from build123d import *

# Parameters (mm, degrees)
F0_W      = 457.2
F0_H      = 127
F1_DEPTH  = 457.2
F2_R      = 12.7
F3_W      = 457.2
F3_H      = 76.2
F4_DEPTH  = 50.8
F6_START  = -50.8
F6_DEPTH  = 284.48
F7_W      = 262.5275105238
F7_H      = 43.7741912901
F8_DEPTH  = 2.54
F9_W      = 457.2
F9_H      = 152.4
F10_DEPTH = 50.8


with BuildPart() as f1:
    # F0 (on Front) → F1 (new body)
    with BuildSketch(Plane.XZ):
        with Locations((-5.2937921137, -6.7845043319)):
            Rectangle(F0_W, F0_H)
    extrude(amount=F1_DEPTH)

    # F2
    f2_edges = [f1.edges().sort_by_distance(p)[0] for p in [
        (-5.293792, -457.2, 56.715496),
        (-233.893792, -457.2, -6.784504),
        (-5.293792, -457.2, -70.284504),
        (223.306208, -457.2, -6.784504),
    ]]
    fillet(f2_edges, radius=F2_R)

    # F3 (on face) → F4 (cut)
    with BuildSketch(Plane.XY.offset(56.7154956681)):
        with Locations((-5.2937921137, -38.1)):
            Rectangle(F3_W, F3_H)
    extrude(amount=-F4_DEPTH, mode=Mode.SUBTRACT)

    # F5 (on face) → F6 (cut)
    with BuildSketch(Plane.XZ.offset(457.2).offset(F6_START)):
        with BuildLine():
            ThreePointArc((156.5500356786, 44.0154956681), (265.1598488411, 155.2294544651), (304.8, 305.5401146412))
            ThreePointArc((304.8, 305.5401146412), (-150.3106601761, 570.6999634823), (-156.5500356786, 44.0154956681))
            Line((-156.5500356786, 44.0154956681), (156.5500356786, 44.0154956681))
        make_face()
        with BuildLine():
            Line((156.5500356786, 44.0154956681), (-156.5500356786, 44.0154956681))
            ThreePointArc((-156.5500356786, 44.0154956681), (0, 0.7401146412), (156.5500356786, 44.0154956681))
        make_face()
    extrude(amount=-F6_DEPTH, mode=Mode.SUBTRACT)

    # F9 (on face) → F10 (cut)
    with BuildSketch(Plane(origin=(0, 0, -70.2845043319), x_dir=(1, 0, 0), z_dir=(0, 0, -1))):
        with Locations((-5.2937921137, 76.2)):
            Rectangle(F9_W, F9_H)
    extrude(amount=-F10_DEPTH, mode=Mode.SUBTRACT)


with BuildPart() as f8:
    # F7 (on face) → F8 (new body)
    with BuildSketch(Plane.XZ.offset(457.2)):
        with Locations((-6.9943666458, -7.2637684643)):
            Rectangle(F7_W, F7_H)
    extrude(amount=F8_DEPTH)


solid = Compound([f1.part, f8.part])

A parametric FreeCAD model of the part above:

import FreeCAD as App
import Part
import Sketcher
Q = App.Units.Quantity


def edges_at(feature, points):
    """Names of the edges that pass closest to the given points."""
    edges = feature.Shape.Edges
    near = lambda p: min(range(len(edges)), key=lambda i: edges[i].distToShape(Part.Vertex(*p))[0])
    return sorted({f"Edge{near(p) + 1}" for p in points})

doc = App.newDocument("Part")
body = doc.addObject("PartDesign::Body", "Body")

sketch1 = doc.addObject("Sketcher::SketchObject", "Sketch")
body.addObject(sketch1)
sketch1.AttachmentSupport = (doc.XZ_Plane, [""])
sketch1.MapMode = "FlatFace"
sketch1.addGeometry([
    Part.LineSegment(App.Vector(-234, 57, 0), App.Vector(-234, -70, 0)),
    Part.LineSegment(App.Vector(-234, -70, 0), App.Vector(223, -70, 0)),
    Part.LineSegment(App.Vector(223, -70, 0), App.Vector(223, 57, 0)),
    Part.LineSegment(App.Vector(223, 57, 0), App.Vector(-234, 57, 0)),
], False)
sketch1.addConstraint([
    Sketcher.Constraint("Coincident", 0, 2, 1, 1),
    Sketcher.Constraint("Coincident", 1, 2, 2, 1),
    Sketcher.Constraint("Coincident", 2, 2, 3, 1),
    Sketcher.Constraint("Coincident", 3, 2, 0, 1),
    Sketcher.Constraint("Vertical", 0),
    Sketcher.Constraint("Horizontal", 1),
    Sketcher.Constraint("Vertical", 2),
    Sketcher.Constraint("Horizontal", 3),
    Sketcher.Constraint("DistanceX", 1, 1, 1, 2, Q("18 in")),
    Sketcher.Constraint("DistanceY", 0, 2, 0, 1, Q("5 in")),
    Sketcher.Constraint("DistanceX", 0, 2, -1, 1, Q("233.893792 mm")),
    Sketcher.Constraint("DistanceY", 0, 2, -1, 1, Q("70.284504 mm")),
])
pad1 = doc.addObject("PartDesign::Pad", "Pad")
body.addObject(pad1)
pad1.Profile = sketch1
pad1.Length = Q("18 in")
doc.recompute()

fillet = doc.addObject("PartDesign::Fillet", "Fillet")
body.addObject(fillet)
fillet.Base = (pad1, edges_at(pad1, [
    (-5.294, -457.2, 56.715),
    (-233.894, -457.2, -6.785),
    (-5.294, -457.2, -70.285),
    (223.306, -457.2, -6.785),
]))
fillet.Radius = Q("0.5 in")

sketch2 = doc.addObject("Sketcher::SketchObject", "Sketch001")
body.addObject(sketch2)
sketch2.AttachmentSupport = (doc.XY_Plane, [""])
sketch2.MapMode = "FlatFace"
sketch2.AttachmentOffset = App.Placement(App.Vector(0, 0, 56.715496), App.Rotation())
sketch2.addGeometry([
    Part.LineSegment(App.Vector(-234, 0, 0), App.Vector(-234, -76, 0)),
    Part.LineSegment(App.Vector(-234, -76, 0), App.Vector(223, -76, 0)),
    Part.LineSegment(App.Vector(223, -76, 0), App.Vector(223, 0, 0)),
    Part.LineSegment(App.Vector(223, 0, 0), App.Vector(-234, 0, 0)),
], False)
sketch2.addConstraint([
    Sketcher.Constraint("Coincident", 0, 2, 1, 1),
    Sketcher.Constraint("Coincident", 1, 2, 2, 1),
    Sketcher.Constraint("Coincident", 2, 2, 3, 1),
    Sketcher.Constraint("Coincident", 3, 2, 0, 1),
    Sketcher.Constraint("Vertical", 0),
    Sketcher.Constraint("Horizontal", 1),
    Sketcher.Constraint("Vertical", 2),
    Sketcher.Constraint("Horizontal", 3),
    Sketcher.Constraint("PointOnObject", 2, 2, -1),
    Sketcher.Constraint("DistanceX", 1, 1, 1, 2, Q("18 in")),
    Sketcher.Constraint("DistanceY", 0, 2, 0, 1, Q("3 in")),
    Sketcher.Constraint("DistanceX", 0, 2, -1, 1, Q("233.893792 mm")),
])
pocket1 = doc.addObject("PartDesign::Pocket", "Pocket")
body.addObject(pocket1)
pocket1.Profile = sketch2
pocket1.Length = Q("2 in")

sketch3 = doc.addObject("Sketcher::SketchObject", "Sketch002")
body.addObject(sketch3)
sketch3.AttachmentSupport = (doc.XZ_Plane, [""])
sketch3.MapMode = "FlatFace"
sketch3.AttachmentOffset = App.Placement(App.Vector(0, 0, 16 * 25.4), App.Rotation())
sketch3.addGeometry(Part.Circle(App.Vector(0, 306, 0), App.Vector(0, 0, 1), 305), False)
sketch3.addConstraint([
    Sketcher.Constraint("PointOnObject", 0, 3, -2),
    Sketcher.Constraint("Diameter", 0, Q("24 in")),
    Sketcher.Constraint("DistanceY", -1, 1, 0, 3, Q("305.540115 mm")),
])
pocket2 = doc.addObject("PartDesign::Pocket", "Pocket001")
body.addObject(pocket2)
pocket2.Profile = sketch3
pocket2.Length = Q("11.2 in")

sketch4 = doc.addObject("Sketcher::SketchObject", "Sketch003")
body.addObject(sketch4)
sketch4.AttachmentSupport = (doc.XY_Plane, [""])
sketch4.MapMode = "FlatFace"
sketch4.AttachmentOffset = App.Placement(App.Vector(0, 0, -70.284504), App.Rotation())
sketch4.addGeometry([
    Part.LineSegment(App.Vector(-234, -152, 0), App.Vector(-234, 0, 0)),
    Part.LineSegment(App.Vector(-234, 0, 0), App.Vector(223, 0, 0)),
    Part.LineSegment(App.Vector(223, 0, 0), App.Vector(223, -152, 0)),
    Part.LineSegment(App.Vector(223, -152, 0), App.Vector(-234, -152, 0)),
], False)
sketch4.addConstraint([
    Sketcher.Constraint("Coincident", 0, 2, 1, 1),
    Sketcher.Constraint("Coincident", 1, 2, 2, 1),
    Sketcher.Constraint("Coincident", 2, 2, 3, 1),
    Sketcher.Constraint("Coincident", 3, 2, 0, 1),
    Sketcher.Constraint("Vertical", 0),
    Sketcher.Constraint("Horizontal", 1),
    Sketcher.Constraint("Vertical", 2),
    Sketcher.Constraint("Horizontal", 3),
    Sketcher.Constraint("PointOnObject", 0, 2, -1),
    Sketcher.Constraint("DistanceX", 1, 1, 1, 2, Q("18 in")),
    Sketcher.Constraint("DistanceY", 0, 1, 0, 2, Q("6 in")),
    Sketcher.Constraint("DistanceX", 0, 2, -1, 1, Q("233.893792 mm")),
])
pocket3 = doc.addObject("PartDesign::Pocket", "Pocket002")
body.addObject(pocket3)
pocket3.Profile = sketch4
pocket3.Length = Q("2 in")
pocket3.Reversed = True
body2 = doc.addObject("PartDesign::Body", "Body001")

sketch5 = doc.addObject("Sketcher::SketchObject", "Sketch004")
body2.addObject(sketch5)
sketch5.AttachmentSupport = (doc.getObject("XZ_Plane001"), [""])
sketch5.MapMode = "FlatFace"
sketch5.AttachmentOffset = App.Placement(App.Vector(0, 0, 18 * 25.4), App.Rotation())
sketch5.addGeometry([
    Part.LineSegment(App.Vector(-138, 15, 0), App.Vector(-138, -29, 0)),
    Part.LineSegment(App.Vector(-138, -29, 0), App.Vector(124, -29, 0)),
    Part.LineSegment(App.Vector(124, -29, 0), App.Vector(124, 15, 0)),
    Part.LineSegment(App.Vector(124, 15, 0), App.Vector(-138, 15, 0)),
], False)
sketch5.addConstraint([
    Sketcher.Constraint("Coincident", 0, 2, 1, 1),
    Sketcher.Constraint("Coincident", 1, 2, 2, 1),
    Sketcher.Constraint("Coincident", 2, 2, 3, 1),
    Sketcher.Constraint("Coincident", 3, 2, 0, 1),
    Sketcher.Constraint("Vertical", 0),
    Sketcher.Constraint("Horizontal", 1),
    Sketcher.Constraint("Vertical", 2),
    Sketcher.Constraint("Horizontal", 3),
    Sketcher.Constraint("DistanceX", 1, 1, 1, 2, Q("262.527511 mm")),
    Sketcher.Constraint("DistanceY", 0, 2, 0, 1, Q("43.774191 mm")),
    Sketcher.Constraint("DistanceX", 0, 2, -1, 1, Q("138.258122 mm")),
    Sketcher.Constraint("DistanceY", 0, 2, -1, 1, Q("29.150864 mm")),
])
pad2 = doc.addObject("PartDesign::Pad", "Pad001")
body2.addObject(pad2)
pad2.Profile = sketch5
pad2.Length = Q("0.1 in")

doc.recompute()
